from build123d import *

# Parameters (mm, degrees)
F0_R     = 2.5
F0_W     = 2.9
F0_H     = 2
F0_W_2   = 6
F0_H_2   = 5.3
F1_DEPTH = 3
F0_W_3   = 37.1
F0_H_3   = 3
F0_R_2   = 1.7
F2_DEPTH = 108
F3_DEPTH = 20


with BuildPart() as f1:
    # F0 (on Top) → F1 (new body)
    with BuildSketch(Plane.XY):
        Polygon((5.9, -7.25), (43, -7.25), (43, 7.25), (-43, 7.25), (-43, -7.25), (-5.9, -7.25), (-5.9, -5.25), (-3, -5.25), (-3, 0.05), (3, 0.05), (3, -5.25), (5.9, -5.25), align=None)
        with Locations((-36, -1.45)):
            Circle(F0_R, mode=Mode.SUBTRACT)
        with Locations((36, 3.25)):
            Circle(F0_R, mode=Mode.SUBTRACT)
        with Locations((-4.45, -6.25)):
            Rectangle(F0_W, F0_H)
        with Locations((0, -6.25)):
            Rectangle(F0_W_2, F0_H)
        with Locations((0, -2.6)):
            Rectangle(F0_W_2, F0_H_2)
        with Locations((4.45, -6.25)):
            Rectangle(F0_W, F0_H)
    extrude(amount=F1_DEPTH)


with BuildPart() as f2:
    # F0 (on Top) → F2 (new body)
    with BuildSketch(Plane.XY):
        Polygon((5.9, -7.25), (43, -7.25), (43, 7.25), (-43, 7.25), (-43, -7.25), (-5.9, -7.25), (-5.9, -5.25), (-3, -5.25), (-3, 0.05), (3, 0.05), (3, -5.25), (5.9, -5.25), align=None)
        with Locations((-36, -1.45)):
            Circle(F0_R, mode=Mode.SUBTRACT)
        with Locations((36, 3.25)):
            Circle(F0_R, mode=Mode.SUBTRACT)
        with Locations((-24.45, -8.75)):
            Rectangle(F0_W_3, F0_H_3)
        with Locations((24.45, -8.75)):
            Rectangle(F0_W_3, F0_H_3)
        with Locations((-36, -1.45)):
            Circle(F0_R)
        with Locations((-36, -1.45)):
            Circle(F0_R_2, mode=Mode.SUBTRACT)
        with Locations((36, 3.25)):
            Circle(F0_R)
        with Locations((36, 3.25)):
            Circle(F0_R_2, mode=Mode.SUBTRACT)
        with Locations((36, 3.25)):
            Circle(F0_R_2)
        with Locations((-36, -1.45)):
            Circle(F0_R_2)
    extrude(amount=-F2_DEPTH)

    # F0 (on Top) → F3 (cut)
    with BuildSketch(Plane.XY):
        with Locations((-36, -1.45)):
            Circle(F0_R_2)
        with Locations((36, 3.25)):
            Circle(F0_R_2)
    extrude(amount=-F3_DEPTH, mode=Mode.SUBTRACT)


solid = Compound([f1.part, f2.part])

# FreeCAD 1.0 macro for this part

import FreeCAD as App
import Part
import Sketcher


def add_polygon(sketch, points):
    """Adds a closed chain of lines whose ends are joined by coincident constraints."""
    first, n = sketch.GeometryCount, len(points)
    for a, b in zip(points, points[1:] + points[:1]):
        sketch.addGeometry(Part.LineSegment(App.Vector(*a, 0), App.Vector(*b, 0)), False)
    for i in range(n):
        sketch.addConstraint(Sketcher.Constraint("Coincident", first + i, 2, first + (i + 1) % n, 1))

doc = App.newDocument("Part")
body = doc.addObject("PartDesign::Body", "Body")

# Sketch on XY plane
sketch1 = doc.addObject("Sketcher::SketchObject", "Sketch")
body.addObject(sketch1)
sketch1.AttachmentSupport = (doc.XY_Plane, [""])
sketch1.MapMode = "FlatFace"
add_polygon(sketch1, [(43, -7.2), (43, 7.2), (-43, 7.2), (-43, -7.2)])  # lines 0-3
sketch1.addGeometry(Part.Circle(App.Vector(-36, -1.4, 0), App.Vector(0, 0, 1), 2.5), False)  # 4
sketch1.addGeometry(Part.Circle(App.Vector(36, 3.2, 0), App.Vector(0, 0, 1), 2.5), False)  # 5
sketch1.addConstraint(Sketcher.Constraint("Vertical", 0))
sketch1.addConstraint(Sketcher.Constraint("Horizontal", 1))
sketch1.addConstraint(Sketcher.Constraint("Vertical", 2))
sketch1.addConstraint(Sketcher.Constraint("Horizontal", 3))
sketch1.addConstraint(Sketcher.Constraint("Equal", 4, 5))
sketch1.addConstraint(Sketcher.Constraint("Symmetric", 0, 2, 2, 2, -1, 1))
sketch1.addConstraint(Sketcher.Constraint("Diameter", 4, 5.0))
sketch1.addConstraint(Sketcher.Constraint("DistanceX", 1, 2, 1, 1, 86.0))
sketch1.addConstraint(Sketcher.Constraint("DistanceY", 0, 1, 0, 2, 14.5))
sketch1.addConstraint(Sketcher.Constraint("DistanceX", 4, 3, -1, 1, 36.0))
sketch1.addConstraint(Sketcher.Constraint("DistanceX", -1, 1, 5, 3, 36.0))
sketch1.addConstraint(Sketcher.Constraint("DistanceY", 5, 3, 0, 2, 4.0))
sketch1.addConstraint(Sketcher.Constraint("DistanceY", 4, 3, 5, 3, 4.7))
pad1 = doc.addObject("PartDesign::Pad", "Pad")
body.addObject(pad1)
pad1.Profile = sketch1
pad1.Length = 3
body2 = doc.addObject("PartDesign::Body", "Body001")

# Sketch on XY plane
sketch2 = doc.addObject("Sketcher::SketchObject", "Sketch001")
body2.addObject(sketch2)
sketch2.AttachmentSupport = (doc.getObject("XY_Plane001"), [""])
sketch2.MapMode = "FlatFace"
add_polygon(sketch2, [(43, 7.2), (-43, 7.2), (-43, -10.2), (-5.9, -10.2), (-5.9, -5.2), (-3, -5.2), (-3, 0.1), (3, 0.1), (3, -5.2), (5.9, -5.2), (5.9, -10.2), (43, -10.2)])  # lines 0-11
sketch2.addConstraint(Sketcher.Constraint("Horizontal", 0))
sketch2.addConstraint(Sketcher.Constraint("Vertical", 1))
sketch2.addConstraint(Sketcher.Constraint("Horizontal", 2))
sketch2.addConstraint(Sketcher.Constraint("Vertical", 3))
sketch2.addConstraint(Sketcher.Constraint("Horizontal", 4))
sketch2.addConstraint(Sketcher.Constraint("Vertical", 5))
sketch2.addConstraint(Sketcher.Constraint("Horizontal", 6))
sketch2.addConstraint(Sketcher.Constraint("Vertical", 7))
sketch2.addConstraint(Sketcher.Constraint("Horizontal", 8))
sketch2.addConstraint(Sketcher.Constraint("Vertical", 9))
sketch2.addConstraint(Sketcher.Constraint("Horizontal", 10))
sketch2.addConstraint(Sketcher.Constraint("Vertical", 11))
sketch2.addConstraint(Sketcher.Constraint("Symmetric", 4, 2, 7, 2, -2))
sketch2.addConstraint(Sketcher.Constraint("Symmetric", 2, 2, 9, 2, -2))
sketch2.addConstraint(Sketcher.Constraint("Equal", 2, 10))
sketch2.addConstraint(Sketcher.Constraint("DistanceX", 0, 2, 0, 1, 86.0))
sketch2.addConstraint(Sketcher.Constraint("DistanceX", 6, 1, 6, 2, 6.0))
sketch2.addConstraint(Sketcher.Constraint("DistanceY", 3, 1, 3, 2, 5.0))
sketch2.addConstraint(Sketcher.Constraint("DistanceX", 2, 1, 2, 2, 37.1))
sketch2.addConstraint(Sketcher.Constraint("DistanceY", 1, 2, 1, 1, 17.5))
sketch2.addConstraint(Sketcher.Constraint("DistanceY", 5, 1, 5, 2, 5.3))
sketch2.addConstraint(Sketcher.Constraint("DistanceY", -1, 1, 0, 2, 7.25))
pad2 = doc.addObject("PartDesign::Pad", "Pad001")
body2.addObject(pad2)
pad2.Profile = sketch2
pad2.Length = 108
pad2.Reversed = True

# Sketch on XY plane
sketch3 = doc.addObject("Sketcher::SketchObject", "Sketch002")
body2.addObject(sketch3)
sketch3.AttachmentSupport = (doc.getObject("XY_Plane001"), [""])
sketch3.MapMode = "FlatFace"
sketch3.addGeometry(Part.Circle(App.Vector(-36, -1.4, 0), App.Vector(0, 0, 1), 1.7), False)
sketch3.addGeometry(Part.Circle(App.Vector(36, 3.2, 0), App.Vector(0, 0, 1), 1.7), False)
sketch3.addConstraint(Sketcher.Constraint("Equal", 0, 1))
sketch3.addConstraint(Sketcher.Constraint("Diameter", 0, 3.4))
sketch3.addConstraint(Sketcher.Constraint("DistanceX", 0, 3, -1, 1, 36.0))
sketch3.addConstraint(Sketcher.Constraint("DistanceX", -1, 1, 1, 3, 36.0))
sketch3.addConstraint(Sketcher.Constraint("DistanceY", 0, 3, 1, 3, 4.7))
sketch3.addConstraint(Sketcher.Constraint("DistanceY", 0, 3, -1, 1, 1.45))
pocket1 = doc.addObject("PartDesign::Pocket", "Pocket")
body2.addObject(pocket1)
pocket1.Profile = sketch3
pocket1.Length = 20

doc.recompute()
